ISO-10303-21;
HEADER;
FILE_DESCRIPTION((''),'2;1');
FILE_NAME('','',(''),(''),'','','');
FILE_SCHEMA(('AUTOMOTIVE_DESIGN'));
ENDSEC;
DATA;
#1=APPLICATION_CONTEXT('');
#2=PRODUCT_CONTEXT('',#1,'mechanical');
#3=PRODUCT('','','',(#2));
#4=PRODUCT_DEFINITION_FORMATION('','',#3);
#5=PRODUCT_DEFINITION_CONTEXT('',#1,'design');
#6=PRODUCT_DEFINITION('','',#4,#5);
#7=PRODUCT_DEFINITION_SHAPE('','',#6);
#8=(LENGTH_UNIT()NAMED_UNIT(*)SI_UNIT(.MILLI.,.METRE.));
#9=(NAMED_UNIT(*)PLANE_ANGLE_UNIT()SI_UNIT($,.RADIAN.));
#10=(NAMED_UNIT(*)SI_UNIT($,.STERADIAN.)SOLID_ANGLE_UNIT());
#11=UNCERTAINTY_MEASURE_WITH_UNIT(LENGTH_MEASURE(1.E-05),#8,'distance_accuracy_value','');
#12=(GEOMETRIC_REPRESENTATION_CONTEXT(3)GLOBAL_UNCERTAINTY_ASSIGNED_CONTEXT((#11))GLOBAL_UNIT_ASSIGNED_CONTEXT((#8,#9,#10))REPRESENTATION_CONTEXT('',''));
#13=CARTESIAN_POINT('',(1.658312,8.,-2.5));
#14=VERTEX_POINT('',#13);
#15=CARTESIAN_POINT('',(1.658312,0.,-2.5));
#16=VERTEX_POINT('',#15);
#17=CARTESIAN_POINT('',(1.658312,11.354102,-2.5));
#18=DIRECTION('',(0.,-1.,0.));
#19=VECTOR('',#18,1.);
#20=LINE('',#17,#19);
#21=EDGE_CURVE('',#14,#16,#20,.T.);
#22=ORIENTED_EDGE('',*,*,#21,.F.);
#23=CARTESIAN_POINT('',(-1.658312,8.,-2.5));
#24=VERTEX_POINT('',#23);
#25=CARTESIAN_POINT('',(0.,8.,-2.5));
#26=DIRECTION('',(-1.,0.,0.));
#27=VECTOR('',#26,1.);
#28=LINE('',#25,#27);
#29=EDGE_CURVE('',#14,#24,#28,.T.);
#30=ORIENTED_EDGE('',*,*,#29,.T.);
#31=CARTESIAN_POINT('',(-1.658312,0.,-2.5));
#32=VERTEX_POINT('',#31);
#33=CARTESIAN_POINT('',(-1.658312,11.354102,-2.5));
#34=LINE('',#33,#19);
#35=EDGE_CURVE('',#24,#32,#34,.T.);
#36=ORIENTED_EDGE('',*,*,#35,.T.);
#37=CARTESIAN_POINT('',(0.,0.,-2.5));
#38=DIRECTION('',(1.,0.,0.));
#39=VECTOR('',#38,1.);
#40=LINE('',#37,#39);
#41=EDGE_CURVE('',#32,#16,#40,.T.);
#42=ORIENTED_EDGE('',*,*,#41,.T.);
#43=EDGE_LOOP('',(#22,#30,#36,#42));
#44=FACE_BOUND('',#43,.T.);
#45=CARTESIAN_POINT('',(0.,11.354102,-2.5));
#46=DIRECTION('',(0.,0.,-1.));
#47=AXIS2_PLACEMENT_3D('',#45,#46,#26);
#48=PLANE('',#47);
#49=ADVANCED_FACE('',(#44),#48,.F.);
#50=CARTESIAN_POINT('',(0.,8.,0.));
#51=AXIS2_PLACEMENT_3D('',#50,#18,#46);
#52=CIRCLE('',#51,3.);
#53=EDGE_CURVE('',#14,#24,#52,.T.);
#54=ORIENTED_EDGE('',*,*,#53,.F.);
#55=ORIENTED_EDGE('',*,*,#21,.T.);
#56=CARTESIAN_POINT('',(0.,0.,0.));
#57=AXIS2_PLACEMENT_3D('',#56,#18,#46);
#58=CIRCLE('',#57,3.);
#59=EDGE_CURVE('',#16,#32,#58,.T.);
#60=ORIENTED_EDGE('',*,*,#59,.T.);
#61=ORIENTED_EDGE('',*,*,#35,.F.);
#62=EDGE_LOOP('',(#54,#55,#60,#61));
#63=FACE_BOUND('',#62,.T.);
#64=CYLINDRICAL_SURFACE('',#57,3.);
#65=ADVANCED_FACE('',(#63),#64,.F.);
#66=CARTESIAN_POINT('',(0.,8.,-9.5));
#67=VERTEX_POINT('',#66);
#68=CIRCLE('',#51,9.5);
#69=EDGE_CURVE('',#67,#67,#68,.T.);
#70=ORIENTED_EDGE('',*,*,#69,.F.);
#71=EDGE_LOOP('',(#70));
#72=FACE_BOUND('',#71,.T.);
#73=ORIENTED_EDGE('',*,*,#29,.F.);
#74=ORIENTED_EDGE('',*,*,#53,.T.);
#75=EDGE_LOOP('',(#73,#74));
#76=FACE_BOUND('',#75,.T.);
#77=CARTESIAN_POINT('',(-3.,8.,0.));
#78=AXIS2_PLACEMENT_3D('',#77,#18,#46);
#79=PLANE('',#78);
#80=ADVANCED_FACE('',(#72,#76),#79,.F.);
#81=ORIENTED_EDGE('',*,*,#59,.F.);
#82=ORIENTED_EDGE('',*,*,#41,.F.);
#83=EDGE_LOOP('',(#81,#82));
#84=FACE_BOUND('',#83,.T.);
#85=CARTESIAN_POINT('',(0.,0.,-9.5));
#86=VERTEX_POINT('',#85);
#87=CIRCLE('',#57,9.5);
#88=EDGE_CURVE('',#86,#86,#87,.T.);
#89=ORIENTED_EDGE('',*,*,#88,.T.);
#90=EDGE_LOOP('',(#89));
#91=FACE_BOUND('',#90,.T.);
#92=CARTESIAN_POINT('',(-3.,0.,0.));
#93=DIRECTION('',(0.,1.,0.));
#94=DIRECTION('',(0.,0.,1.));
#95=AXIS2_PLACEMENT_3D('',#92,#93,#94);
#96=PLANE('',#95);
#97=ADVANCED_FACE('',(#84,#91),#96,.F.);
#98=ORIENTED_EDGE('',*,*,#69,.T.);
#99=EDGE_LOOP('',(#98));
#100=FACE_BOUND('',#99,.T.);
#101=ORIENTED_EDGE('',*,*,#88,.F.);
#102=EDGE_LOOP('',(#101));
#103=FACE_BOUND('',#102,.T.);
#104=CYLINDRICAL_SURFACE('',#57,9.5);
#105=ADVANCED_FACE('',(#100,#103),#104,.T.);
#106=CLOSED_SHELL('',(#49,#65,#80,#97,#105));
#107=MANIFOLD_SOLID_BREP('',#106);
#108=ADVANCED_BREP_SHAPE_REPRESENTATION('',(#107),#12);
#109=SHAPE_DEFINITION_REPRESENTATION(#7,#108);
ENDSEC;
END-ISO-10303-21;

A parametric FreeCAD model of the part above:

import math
import FreeCAD as App
import Part
import Sketcher
Q = App.Units.Quantity


def add_polygon(sketch, points):
    """Adds a closed chain of lines whose ends are joined by coincident constraints."""
    first, n = sketch.GeometryCount, len(points)
    for a, b in zip(points, points[1:] + points[:1]):
        sketch.addGeometry(Part.LineSegment(App.Vector(*a, 0), App.Vector(*b, 0)), False)
    for i in range(n):
        sketch.addConstraint(Sketcher.Constraint("Coincident", first + i, 2, first + (i + 1) % n, 1))

doc = App.newDocument("Part")
body = doc.addObject("PartDesign::Body", "Body")

sketch1 = body.newObject("Sketcher::SketchObject", "Sketch")
sketch1.AttachmentSupport = (doc.getObject("XY_Plane"), [""])
sketch1.MapMode = "FlatFace"
add_polygon(sketch1, [(-9.5, 8), (-9.5, 0), (-3, 0), (-3, 8)])
sketch1.addConstraint(Sketcher.Constraint("Vertical", 0))
sketch1.addConstraint(Sketcher.Constraint("Horizontal", 1))
sketch1.addConstraint(Sketcher.Constraint("Vertical", 2))
sketch1.addConstraint(Sketcher.Constraint("Horizontal", 3))
sketch1.addConstraint(Sketcher.Constraint("PointOnObject", 0, 2, -1))
sketch1.addConstraint(Sketcher.Constraint("DistanceY", 0, 2, 0, 1, Q("8 mm")))
sketch1.addConstraint(Sketcher.Constraint("DistanceX", 1, 1, 1, 2, Q("6.5 mm")))
sketch1.addConstraint(Sketcher.Constraint("DistanceX", 1, 2, -1, 1, Q("3 mm")))
revolution = body.newObject("PartDesign::Revolution", "Revolution")
revolution.Profile = sketch1
revolution.ReferenceAxis = (sketch1, ["V_Axis"])
revolution.Angle = 360

sketch2 = body.newObject("Sketcher::SketchObject", "Sketch001")
sketch2.AttachmentSupport = (doc.getObject("XZ_Plane"), [""])
sketch2.MapMode = "FlatFace"
sketch2.addGeometry(Part.LineSegment(App.Vector(1.658312, -2.5, 0), App.Vector(-1.658312, -2.5, 0)), False)
sketch2.addGeometry(Part.ArcOfCircle(Part.Circle(App.Vector(0, 0, 0), App.Vector(0, 0, 1), 3), math.radians(-123.55731), math.radians(-56.44269)), False)
sketch2.addConstraint(Sketcher.Constraint("Coincident", 0, 1, 1, 2))
sketch2.addConstraint(Sketcher.Constraint("Coincident", 1, 1, 0, 2))
sketch2.addConstraint(Sketcher.Constraint("Horizontal", 0))
sketch2.addConstraint(Sketcher.Constraint("Coincident", 1, 3, -1, 1))
sketch2.addConstraint(Sketcher.Constraint("Radius", 1, Q("3 mm")))
sketch2.addConstraint(Sketcher.Constraint("DistanceY", 0, 1, -1, 1, Q("2.5 mm")))
pad1 = body.newObject("PartDesign::Pad", "Pad")
pad1.Profile = sketch2
pad1.Length = 8
pad1.Reversed = True

doc.recompute()
